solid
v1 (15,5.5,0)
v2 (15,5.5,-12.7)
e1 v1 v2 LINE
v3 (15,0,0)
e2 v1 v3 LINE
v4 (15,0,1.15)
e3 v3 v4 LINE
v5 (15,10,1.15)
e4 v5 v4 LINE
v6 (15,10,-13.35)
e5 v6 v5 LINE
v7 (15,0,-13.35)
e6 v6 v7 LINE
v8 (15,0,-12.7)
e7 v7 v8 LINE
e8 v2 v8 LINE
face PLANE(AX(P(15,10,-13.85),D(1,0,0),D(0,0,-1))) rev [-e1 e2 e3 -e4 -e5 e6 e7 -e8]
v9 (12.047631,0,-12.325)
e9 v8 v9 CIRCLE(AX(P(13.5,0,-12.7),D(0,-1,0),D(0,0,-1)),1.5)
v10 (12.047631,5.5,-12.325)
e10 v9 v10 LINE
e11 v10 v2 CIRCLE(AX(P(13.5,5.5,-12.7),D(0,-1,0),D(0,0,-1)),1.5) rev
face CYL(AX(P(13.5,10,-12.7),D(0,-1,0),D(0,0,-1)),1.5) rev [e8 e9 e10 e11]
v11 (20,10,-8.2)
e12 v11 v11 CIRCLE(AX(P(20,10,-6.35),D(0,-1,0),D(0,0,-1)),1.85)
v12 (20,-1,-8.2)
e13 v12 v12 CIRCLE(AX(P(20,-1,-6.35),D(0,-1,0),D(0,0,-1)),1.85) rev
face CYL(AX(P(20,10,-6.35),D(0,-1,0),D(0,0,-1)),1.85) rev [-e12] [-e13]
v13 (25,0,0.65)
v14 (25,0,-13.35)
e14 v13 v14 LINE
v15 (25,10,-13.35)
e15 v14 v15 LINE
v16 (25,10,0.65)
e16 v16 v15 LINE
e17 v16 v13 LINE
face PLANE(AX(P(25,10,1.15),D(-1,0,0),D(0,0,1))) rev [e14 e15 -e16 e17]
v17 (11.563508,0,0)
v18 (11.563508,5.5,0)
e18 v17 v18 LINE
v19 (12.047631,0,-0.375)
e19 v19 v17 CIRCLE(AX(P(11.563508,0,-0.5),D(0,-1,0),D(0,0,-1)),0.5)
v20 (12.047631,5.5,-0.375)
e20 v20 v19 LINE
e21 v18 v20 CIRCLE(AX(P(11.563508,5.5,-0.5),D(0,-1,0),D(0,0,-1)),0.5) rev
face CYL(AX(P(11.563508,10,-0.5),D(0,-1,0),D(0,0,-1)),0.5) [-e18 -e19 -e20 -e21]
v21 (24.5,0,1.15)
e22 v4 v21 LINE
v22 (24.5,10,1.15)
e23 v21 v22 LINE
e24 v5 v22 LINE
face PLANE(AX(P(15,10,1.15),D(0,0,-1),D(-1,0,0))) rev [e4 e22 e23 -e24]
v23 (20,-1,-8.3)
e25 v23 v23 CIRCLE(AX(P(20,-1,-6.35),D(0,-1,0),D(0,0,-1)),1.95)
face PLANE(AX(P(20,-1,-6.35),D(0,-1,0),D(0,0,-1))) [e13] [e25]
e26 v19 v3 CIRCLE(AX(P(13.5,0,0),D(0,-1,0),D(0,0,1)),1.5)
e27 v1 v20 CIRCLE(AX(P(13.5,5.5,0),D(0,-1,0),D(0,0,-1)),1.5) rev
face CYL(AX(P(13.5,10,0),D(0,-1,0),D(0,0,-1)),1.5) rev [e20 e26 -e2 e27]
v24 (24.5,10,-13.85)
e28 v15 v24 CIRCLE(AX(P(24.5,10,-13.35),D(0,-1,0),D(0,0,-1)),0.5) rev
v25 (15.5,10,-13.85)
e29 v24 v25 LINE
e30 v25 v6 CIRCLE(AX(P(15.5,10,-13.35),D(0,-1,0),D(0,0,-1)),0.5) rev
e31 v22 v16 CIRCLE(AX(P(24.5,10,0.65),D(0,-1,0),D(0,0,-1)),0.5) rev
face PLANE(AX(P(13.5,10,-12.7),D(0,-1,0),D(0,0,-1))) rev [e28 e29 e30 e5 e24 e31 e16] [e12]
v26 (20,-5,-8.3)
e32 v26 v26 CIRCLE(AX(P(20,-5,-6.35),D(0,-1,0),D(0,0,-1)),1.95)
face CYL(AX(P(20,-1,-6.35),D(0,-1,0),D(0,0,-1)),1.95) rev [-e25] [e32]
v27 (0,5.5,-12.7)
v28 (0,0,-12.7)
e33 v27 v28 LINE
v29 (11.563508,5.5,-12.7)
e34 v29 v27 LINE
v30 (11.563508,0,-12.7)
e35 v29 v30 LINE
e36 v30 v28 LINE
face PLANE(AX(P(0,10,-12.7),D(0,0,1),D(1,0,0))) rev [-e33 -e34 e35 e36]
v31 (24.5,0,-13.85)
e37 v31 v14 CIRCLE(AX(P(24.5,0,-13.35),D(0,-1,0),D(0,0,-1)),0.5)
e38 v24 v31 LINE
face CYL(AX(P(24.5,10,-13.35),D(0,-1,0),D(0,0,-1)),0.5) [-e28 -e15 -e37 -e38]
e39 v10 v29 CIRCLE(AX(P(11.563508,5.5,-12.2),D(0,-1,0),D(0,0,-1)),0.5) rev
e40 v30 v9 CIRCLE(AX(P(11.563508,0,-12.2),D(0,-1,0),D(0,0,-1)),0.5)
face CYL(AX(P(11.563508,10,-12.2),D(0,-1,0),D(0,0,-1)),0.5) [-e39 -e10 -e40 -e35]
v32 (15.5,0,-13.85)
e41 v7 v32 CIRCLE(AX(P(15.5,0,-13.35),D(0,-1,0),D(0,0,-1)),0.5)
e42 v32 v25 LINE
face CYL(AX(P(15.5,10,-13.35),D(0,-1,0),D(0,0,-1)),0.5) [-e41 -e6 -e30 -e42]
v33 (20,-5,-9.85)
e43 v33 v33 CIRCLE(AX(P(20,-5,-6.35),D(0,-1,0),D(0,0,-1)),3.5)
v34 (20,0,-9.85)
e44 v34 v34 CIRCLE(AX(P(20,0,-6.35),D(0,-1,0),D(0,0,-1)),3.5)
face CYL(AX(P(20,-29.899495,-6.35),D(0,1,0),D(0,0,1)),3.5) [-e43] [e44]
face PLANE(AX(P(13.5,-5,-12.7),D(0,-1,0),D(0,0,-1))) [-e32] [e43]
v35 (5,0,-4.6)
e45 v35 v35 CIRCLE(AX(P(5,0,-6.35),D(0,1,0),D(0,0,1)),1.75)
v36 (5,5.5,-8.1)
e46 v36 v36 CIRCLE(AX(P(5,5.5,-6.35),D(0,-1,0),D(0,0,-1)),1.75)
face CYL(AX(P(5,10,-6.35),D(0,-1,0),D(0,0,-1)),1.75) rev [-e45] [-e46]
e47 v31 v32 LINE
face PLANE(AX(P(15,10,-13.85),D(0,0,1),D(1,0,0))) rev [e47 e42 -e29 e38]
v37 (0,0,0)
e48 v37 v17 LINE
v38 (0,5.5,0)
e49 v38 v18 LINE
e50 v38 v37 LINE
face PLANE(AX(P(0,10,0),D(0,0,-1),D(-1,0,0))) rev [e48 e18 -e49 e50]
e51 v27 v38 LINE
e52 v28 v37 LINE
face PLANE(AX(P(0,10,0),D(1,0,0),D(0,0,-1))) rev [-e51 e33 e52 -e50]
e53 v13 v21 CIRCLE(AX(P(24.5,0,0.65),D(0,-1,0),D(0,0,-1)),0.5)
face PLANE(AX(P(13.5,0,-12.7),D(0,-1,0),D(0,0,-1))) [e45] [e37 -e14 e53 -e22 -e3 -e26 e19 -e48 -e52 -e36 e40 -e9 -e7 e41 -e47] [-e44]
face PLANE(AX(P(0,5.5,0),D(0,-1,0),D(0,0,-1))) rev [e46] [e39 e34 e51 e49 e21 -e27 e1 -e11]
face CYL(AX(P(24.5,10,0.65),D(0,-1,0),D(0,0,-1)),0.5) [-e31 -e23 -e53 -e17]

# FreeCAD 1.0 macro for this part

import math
import FreeCAD as App
import Part
import Sketcher

V = App.Vector


def edges_at(feature, points):
    """Names of the edges that pass closest to the given points."""
    edges = feature.Shape.Edges
    near = lambda p: min(range(len(edges)), key=lambda i: edges[i].distToShape(Part.Vertex(*p))[0])
    return sorted({f"Edge{near(p) + 1}" for p in points})

doc = App.newDocument("Part")
body = doc.addObject("PartDesign::Body", "Body")

sketch1 = body.newObject("Sketcher::SketchObject", "Sketch")
sketch1.AttachmentSupport = (doc.getObject("XZ_Plane"), [""])
sketch1.MapMode = "FlatFace"
sketch1.addGeometry(Part.LineSegment(V(0, 0, 0), V(12, 0, 0)), False)
sketch1.addGeometry(Part.ArcOfCircle(Part.Circle(V(13.5, 0, 0), V(0, 0, 1), 1.5), math.radians(180), math.radians(360)), False)
sketch1.addGeometry(Part.LineSegment(V(15, 0, 0), V(15, 1.15, 0)), False)
sketch1.addGeometry(Part.LineSegment(V(15, 1.15, 0), V(25, 1.15, 0)), False)
sketch1.addGeometry(Part.LineSegment(V(25, 1.15, 0), V(25, -13.85, 0)), False)
sketch1.addGeometry(Part.LineSegment(V(25, -13.85, 0), V(15, -13.85, 0)), False)
sketch1.addGeometry(Part.LineSegment(V(15, -13.85, 0), V(15, -12.7, 0)), False)
sketch1.addGeometry(Part.ArcOfCircle(Part.Circle(V(13.5, -12.7, 0), V(0, 0, 1), 1.5), math.radians(0), math.radians(180)), False)
sketch1.addGeometry(Part.LineSegment(V(12, -12.7, 0), V(0, -12.7, 0)), False)
sketch1.addGeometry(Part.LineSegment(V(0, -12.7, 0), V(0, 0, 0)), False)
sketch1.addGeometry(Part.Circle(V(5, -6.35, 0), V(0, 0, 1), 1.75), False)
sketch1.addGeometry(Part.Circle(V(20, -6.35, 0), V(0, 0, 1), 1.75), False)
sketch1.addConstraint(Sketcher.Constraint("Coincident", 0, 2, 1, 1))
sketch1.addConstraint(Sketcher.Constraint("Tangent", 1, 2, 2, 1))
sketch1.addConstraint(Sketcher.Constraint("Coincident", 2, 2, 3, 1))
sketch1.addConstraint(Sketcher.Constraint("Coincident", 3, 2, 4, 1))
sketch1.addConstraint(Sketcher.Constraint("Coincident", 4, 2, 5, 1))
sketch1.addConstraint(Sketcher.Constraint("Coincident", 5, 2, 6, 1))
sketch1.addConstraint(Sketcher.Constraint("Tangent", 6, 2, 7, 1))
sketch1.addConstraint(Sketcher.Constraint("Coincident", 7, 2, 8, 1))
sketch1.addConstraint(Sketcher.Constraint("Coincident", 8, 2, 9, 1))
sketch1.addConstraint(Sketcher.Constraint("Coincident", 9, 2, 0, 1))
sketch1.addConstraint(Sketcher.Constraint("Horizontal", 0))
sketch1.addConstraint(Sketcher.Constraint("Vertical", 2))
sketch1.addConstraint(Sketcher.Constraint("Horizontal", 3))
sketch1.addConstraint(Sketcher.Constraint("Vertical", 4))
sketch1.addConstraint(Sketcher.Constraint("Horizontal", 5))
sketch1.addConstraint(Sketcher.Constraint("Vertical", 6))
sketch1.addConstraint(Sketcher.Constraint("Horizontal", 8))
sketch1.addConstraint(Sketcher.Constraint("Vertical", 9))
sketch1.addConstraint(Sketcher.Constraint("Coincident", 9, 2, -1, 1))
sketch1.addConstraint(Sketcher.Constraint("Equal", 1, 7))
sketch1.addConstraint(Sketcher.Constraint("Equal", 10, 11))
sketch1.addConstraint(Sketcher.Constraint("PointOnObject", 1, 3, -1))
sketch1.addConstraint(Sketcher.Constraint("Horizontal", 10, 3, 11, 3))
sketch1.addConstraint(Sketcher.Constraint("Horizontal", 6, 2, 7, 2))
sketch1.addConstraint(Sketcher.Constraint("Vertical", 1, 3, 7, 3))
sketch1.addConstraint(Sketcher.Constraint("Equal", 2, 6))
sketch1.addConstraint(Sketcher.Constraint("Diameter", 10, 3.5))
sketch1.addConstraint(Sketcher.Constraint("Radius", 1, 1.5))
sketch1.addConstraint(Sketcher.Constraint("DistanceX", 0, 1, 0, 2, 12.0))
sketch1.addConstraint(Sketcher.Constraint("DistanceX", 3, 1, 3, 2, 10.0))
sketch1.addConstraint(Sketcher.Constraint("DistanceY", 4, 2, 4, 1, 15.0))
sketch1.addConstraint(Sketcher.Constraint("DistanceY", 9, 1, 9, 2, 12.7))
sketch1.addConstraint(Sketcher.Constraint("DistanceX", -1, 1, 10, 3, 5.0))
sketch1.addConstraint(Sketcher.Constraint("DistanceX", -1, 1, 11, 3, 20.0))
sketch1.addConstraint(Sketcher.Constraint("DistanceY", 11, 3, 2, 2, 7.5))
pad1 = body.newObject("PartDesign::Pad", "Pad")
pad1.Profile = sketch1
pad1.Length = 10
pad1.Reversed = True

sketch2 = body.newObject("Sketcher::SketchObject", "Sketch001")
sketch2.AttachmentSupport = (doc.getObject("XZ_Plane"), [""])
sketch2.MapMode = "FlatFace"
sketch2.AttachmentOffset = App.Placement(V(0, 0, -10), App.Rotation())
sketch2.addGeometry(Part.LineSegment(V(0, -12.7, 0), V(0, 0, 0)), False)
sketch2.addGeometry(Part.LineSegment(V(0, 0, 0), V(15, 0, 0)), False)
sketch2.addGeometry(Part.LineSegment(V(15, 0, 0), V(15, -12.7, 0)), False)
sketch2.addGeometry(Part.LineSegment(V(15, -12.7, 0), V(0, -12.7, 0)), False)
sketch2.addConstraint(Sketcher.Constraint("Coincident", 0, 2, 1, 1))
sketch2.addConstraint(Sketcher.Constraint("Coincident", 1, 2, 2, 1))
sketch2.addConstraint(Sketcher.Constraint("Coincident", 2, 2, 3, 1))
sketch2.addConstraint(Sketcher.Constraint("Coincident", 3, 2, 0, 1))
sketch2.addConstraint(Sketcher.Constraint("Vertical", 0))
sketch2.addConstraint(Sketcher.Constraint("Horizontal", 1))
sketch2.addConstraint(Sketcher.Constraint("Vertical", 2))
sketch2.addConstraint(Sketcher.Constraint("Horizontal", 3))
sketch2.addConstraint(Sketcher.Constraint("Coincident", 0, 2, -1, 1))
sketch2.addConstraint(Sketcher.Constraint("DistanceX", 1, 1, 1, 2, 15.0))
sketch2.addConstraint(Sketcher.Constraint("DistanceY", 0, 1, 0, 2, 12.7))
pocket1 = body.newObject("PartDesign::Pocket", "Pocket")
pocket1.Profile = sketch2
pocket1.Length = 4.5
pocket1.Reversed = True
doc.recompute()

fillet = body.newObject("PartDesign::Fillet", "Fillet")
fillet.Base = (pocket1, edges_at(pocket1, [
    (15, 5, -13.85),
    (25, 5, -13.85),
    (25, 5, 1.15),
    (12, 2.75, -12.7),
    (12, 2.75, 0),
]))
fillet.Radius = 0.5

sketch3 = body.newObject("Sketcher::SketchObject", "Sketch002")
sketch3.AttachmentSupport = (doc.getObject("XZ_Plane"), [""])
sketch3.MapMode = "FlatFace"
sketch3.AttachmentOffset = App.Placement(V(0, 0, 5), App.Rotation())
sketch3.addGeometry(Part.Circle(V(20, -6.35, 0), V(0, 0, 1), 3.5), False)
sketch3.addGeometry(Part.Circle(V(20, -6.35, 0), V(0, 0, 1), 1.75), False)
sketch3.addConstraint(Sketcher.Constraint("Coincident", 1, 3, 0, 3))
sketch3.addConstraint(Sketcher.Constraint("Diameter", 0, 7.0))
sketch3.addConstraint(Sketcher.Constraint("Diameter", 1, 3.5))
sketch3.addConstraint(Sketcher.Constraint("DistanceX", -1, 1, 0, 3, 20.0))
sketch3.addConstraint(Sketcher.Constraint("DistanceY", 0, 3, -1, 1, 6.35))
pad2 = body.newObject("PartDesign::Pad", "Pad001")
pad2.Profile = sketch3
pad2.Length = 5
pad2.Reversed = True

sketch4 = body.newObject("Sketcher::SketchObject", "Sketch003")
sketch4.AttachmentSupport = (doc.getObject("XZ_Plane"), [""])
sketch4.MapMode = "FlatFace"
sketch4.AttachmentOffset = App.Placement(V(0, 0, 5), App.Rotation())
sketch4.addGeometry(Part.Circle(V(20, -6.35, 0), V(0, 0, 1), 1.85), False)
sketch4.addConstraint(Sketcher.Constraint("Diameter", 0, 3.7))
sketch4.addConstraint(Sketcher.Constraint("DistanceX", -1, 1, 0, 3, 20.0))
sketch4.addConstraint(Sketcher.Constraint("DistanceY", 0, 3, -1, 1, 6.35))
pocket2 = body.newObject("PartDesign::Pocket", "Pocket001")
pocket2.Profile = sketch4
pocket2.Type = "ThroughAll"

sketch5 = body.newObject("Sketcher::SketchObject", "Sketch004")
sketch5.AttachmentSupport = (doc.getObject("XZ_Plane"), [""])
sketch5.MapMode = "FlatFace"
sketch5.AttachmentOffset = App.Placement(V(0, 0, 5), App.Rotation())
sketch5.addGeometry(Part.Circle(V(20, -6.35, 0), V(0, 0, 1), 1.95), False)
sketch5.addConstraint(Sketcher.Constraint("Diameter", 0, 3.9))
sketch5.addConstraint(Sketcher.Constraint("DistanceX", -1, 1, 0, 3, 20.0))
sketch5.addConstraint(Sketcher.Constraint("DistanceY", 0, 3, -1, 1, 6.35))
pocket3 = body.newObject("PartDesign::Pocket", "Pocket002")
pocket3.Profile = sketch5
pocket3.Length = 4

doc.recompute()
